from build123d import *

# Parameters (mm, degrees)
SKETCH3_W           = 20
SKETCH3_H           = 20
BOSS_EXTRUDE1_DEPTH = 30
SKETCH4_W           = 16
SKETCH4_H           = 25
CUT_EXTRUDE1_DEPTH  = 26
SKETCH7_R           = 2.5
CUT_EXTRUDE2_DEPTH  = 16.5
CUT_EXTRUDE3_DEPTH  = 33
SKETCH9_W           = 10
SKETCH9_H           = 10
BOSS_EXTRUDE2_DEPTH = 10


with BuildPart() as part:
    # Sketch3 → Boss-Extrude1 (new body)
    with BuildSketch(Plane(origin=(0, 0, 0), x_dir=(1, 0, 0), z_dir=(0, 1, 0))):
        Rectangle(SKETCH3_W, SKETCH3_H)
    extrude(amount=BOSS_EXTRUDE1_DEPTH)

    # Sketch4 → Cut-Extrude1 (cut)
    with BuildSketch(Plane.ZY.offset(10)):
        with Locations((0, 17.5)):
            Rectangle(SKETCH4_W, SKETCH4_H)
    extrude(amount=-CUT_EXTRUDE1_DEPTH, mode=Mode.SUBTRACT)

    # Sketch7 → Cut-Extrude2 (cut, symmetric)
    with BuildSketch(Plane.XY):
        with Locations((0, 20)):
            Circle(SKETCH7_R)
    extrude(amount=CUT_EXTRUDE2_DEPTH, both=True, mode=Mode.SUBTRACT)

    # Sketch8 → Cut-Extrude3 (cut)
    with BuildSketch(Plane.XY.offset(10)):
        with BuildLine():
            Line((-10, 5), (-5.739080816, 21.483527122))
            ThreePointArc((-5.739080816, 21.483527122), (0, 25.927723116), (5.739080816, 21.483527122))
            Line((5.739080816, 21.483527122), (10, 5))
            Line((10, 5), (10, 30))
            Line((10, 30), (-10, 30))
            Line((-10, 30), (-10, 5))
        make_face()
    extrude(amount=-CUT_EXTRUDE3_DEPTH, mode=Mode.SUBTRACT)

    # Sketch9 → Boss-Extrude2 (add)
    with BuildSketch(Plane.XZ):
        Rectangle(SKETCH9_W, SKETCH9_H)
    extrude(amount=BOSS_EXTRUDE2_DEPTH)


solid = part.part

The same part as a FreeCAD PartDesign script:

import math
import FreeCAD as App
import Part
import Sketcher


def add_polygon(sketch, points):
    """Adds a closed chain of lines whose ends are joined by coincident constraints."""
    first, n = sketch.GeometryCount, len(points)
    for a, b in zip(points, points[1:] + points[:1]):
        sketch.addGeometry(Part.LineSegment(App.Vector(*a, 0), App.Vector(*b, 0)), False)
    for i in range(n):
        sketch.addConstraint(Sketcher.Constraint("Coincident", first + i, 2, first + (i + 1) % n, 1))

doc = App.newDocument("Part")
body = doc.addObject("PartDesign::Body", "Body")

# Sketch on XZ plane
sketch1 = body.newObject("Sketcher::SketchObject", "Sketch")
sketch1.AttachmentSupport = (doc.getObject("XZ_Plane"), [""])
sketch1.MapMode = "FlatFace"
add_polygon(sketch1, [(-10, -10), (-10, 10), (10, 10), (10, -10)])  # lines 0-3
sketch1.addConstraint([
    Sketcher.Constraint("Vertical", 0),
    Sketcher.Constraint("Horizontal", 1),
    Sketcher.Constraint("Vertical", 2),
    Sketcher.Constraint("Horizontal", 3),
    Sketcher.Constraint("Symmetric", 0, 2, 2, 2, -1, 1),
    Sketcher.Constraint("Equal", 3, 0),
    Sketcher.Constraint("DistanceX", 1, 1, 1, 2, 20.0),
])
pad1 = body.newObject("PartDesign::Pad", "Pad")
pad1.Profile = sketch1
pad1.Length = 30
pad1.Reversed = True

# Sketch on YZ plane
sketch2 = body.newObject("Sketcher::SketchObject", "Sketch001")
sketch2.AttachmentSupport = (doc.getObject("YZ_Plane"), [""])
sketch2.MapMode = "FlatFace"
sketch2.AttachmentOffset = App.Placement(App.Vector(0, 0, -10), App.Rotation())
add_polygon(sketch2, [(30, -8), (5, -8), (5, 8), (30, 8)])  # lines 0-3
sketch2.addConstraint([
    Sketcher.Constraint("Horizontal", 0),
    Sketcher.Constraint("Vertical", 1),
    Sketcher.Constraint("Horizontal", 2),
    Sketcher.Constraint("Vertical", 3),
    Sketcher.Constraint("DistanceX", 0, 2, 0, 1, 25.0),
    Sketcher.Constraint("DistanceY", 1, 1, 1, 2, 16.0),
    Sketcher.Constraint("DistanceX", -1, 1, 0, 2, 5.0),
    Sketcher.Constraint("DistanceY", 0, 2, -1, 1, 8.0),
])
pocket1 = body.newObject("PartDesign::Pocket", "Pocket")
pocket1.Profile = sketch2
pocket1.Length = 26
pocket1.Reversed = True

# Sketch on XY plane
sketch3 = body.newObject("Sketcher::SketchObject", "Sketch002")
sketch3.AttachmentSupport = (doc.getObject("XY_Plane"), [""])
sketch3.MapMode = "FlatFace"
sketch3.addGeometry(Part.Circle(App.Vector(0, 20, 0), App.Vector(0, 0, 1), 2.5), False)
sketch3.addConstraint([
    Sketcher.Constraint("PointOnObject", 0, 3, -2),
    Sketcher.Constraint("Diameter", 0, 5.0),
    Sketcher.Constraint("DistanceY", -1, 1, 0, 3, 20.0),
])
pocket2 = body.newObject("PartDesign::Pocket", "Pocket001")
pocket2.Profile = sketch3
pocket2.Length = 33
pocket2.Midplane = True

# Sketch on XY plane
sketch4 = body.newObject("Sketcher::SketchObject", "Sketch003")
sketch4.AttachmentSupport = (doc.getObject("XY_Plane"), [""])
sketch4.MapMode = "FlatFace"
sketch4.AttachmentOffset = App.Placement(App.Vector(0, 0, 10), App.Rotation())
sketch4.addGeometry([
    Part.LineSegment(App.Vector(-10, 5, 0), App.Vector(-6, 21, 0)),  # 0
    Part.ArcOfCircle(Part.Circle(App.Vector(0, 20, 0), App.Vector(0, 0, 1), 6), math.radians(14), math.radians(166)),  # 1
    Part.LineSegment(App.Vector(6, 21, 0), App.Vector(10, 5, 0)),  # 2
    Part.LineSegment(App.Vector(10, 5, 0), App.Vector(10, 30, 0)),  # 3
    Part.LineSegment(App.Vector(10, 30, 0), App.Vector(-10, 30, 0)),  # 4
    Part.LineSegment(App.Vector(-10, 30, 0), App.Vector(-10, 5, 0)),  # 5
], False)
sketch4.addConstraint([
    Sketcher.Constraint("Tangent", 0, 2, 1, 2),
    Sketcher.Constraint("Tangent", 1, 1, 2, 1),
    Sketcher.Constraint("Coincident", 2, 2, 3, 1),
    Sketcher.Constraint("Coincident", 3, 2, 4, 1),
    Sketcher.Constraint("Coincident", 4, 2, 5, 1),
    Sketcher.Constraint("Coincident", 5, 2, 0, 1),
    Sketcher.Constraint("Vertical", 3),
    Sketcher.Constraint("Horizontal", 4),
    Sketcher.Constraint("Vertical", 5),
    Sketcher.Constraint("Symmetric", 0, 2, 1, 1, -2),
    Sketcher.Constraint("Horizontal", 2, 2, 5, 2),
    Sketcher.Constraint("DistanceX", 4, 2, 4, 1, 20.0),
    Sketcher.Constraint("DistanceY", 3, 1, 3, 2, 25.0),
    Sketcher.Constraint("DistanceY", -1, 1, 1, 3, 20.0),
    Sketcher.Constraint("DistanceY", -1, 1, 2, 2, 5.0),
    Sketcher.Constraint("Radius", 1, 5.927723),
])
pocket3 = body.newObject("PartDesign::Pocket", "Pocket002")
pocket3.Profile = sketch4
pocket3.Length = 33

# Sketch on XZ plane
sketch5 = body.newObject("Sketcher::SketchObject", "Sketch004")
sketch5.AttachmentSupport = (doc.getObject("XZ_Plane"), [""])
sketch5.MapMode = "FlatFace"
add_polygon(sketch5, [(-5, 5), (-5, -5), (5, -5), (5, 5)])  # lines 0-3
sketch5.addConstraint([
    Sketcher.Constraint("Vertical", 0),
    Sketcher.Constraint("Horizontal", 1),
    Sketcher.Constraint("Vertical", 2),
    Sketcher.Constraint("Horizontal", 3),
    Sketcher.Constraint("Symmetric", 0, 2, 2, 2, -1, 1),
    Sketcher.Constraint("Equal", 3, 0),
    Sketcher.Constraint("DistanceX", 1, 1, 1, 2, 10.0),
])
pad2 = body.newObject("PartDesign::Pad", "Pad001")
pad2.Profile = sketch5
pad2.Length = 10

doc.recompute()
